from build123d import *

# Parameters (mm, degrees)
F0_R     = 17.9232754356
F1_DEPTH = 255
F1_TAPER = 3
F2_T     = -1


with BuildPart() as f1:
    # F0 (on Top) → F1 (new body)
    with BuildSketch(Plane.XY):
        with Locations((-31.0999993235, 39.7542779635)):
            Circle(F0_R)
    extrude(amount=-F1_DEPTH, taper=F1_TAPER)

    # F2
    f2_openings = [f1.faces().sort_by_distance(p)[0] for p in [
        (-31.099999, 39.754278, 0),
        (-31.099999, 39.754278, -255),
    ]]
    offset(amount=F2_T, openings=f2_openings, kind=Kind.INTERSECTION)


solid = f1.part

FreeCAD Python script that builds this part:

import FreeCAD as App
import Part
import Sketcher
from FreeCAD import Vector


def faces_at(feature, points):
    """Names of the faces that lie closest to the given points."""
    faces = feature.Shape.Faces
    near = lambda p: min(range(len(faces)), key=lambda i: faces[i].distToShape(Part.Vertex(*p))[0])
    return sorted({f"Face{near(p) + 1}" for p in points})

doc = App.newDocument("Part")
body = doc.addObject("PartDesign::Body", "Body")

# Sketch on XY plane
sketch1 = body.newObject("Sketcher::SketchObject", "Sketch")
sketch1.AttachmentSupport = (doc.getObject("XY_Plane"), [""])
sketch1.MapMode = "FlatFace"
sketch1.addGeometry(Part.Circle(Vector(-31, 40, 0), Vector(0, 0, 1), 18), False)
sketch1.addConstraint([
    Sketcher.Constraint("DistanceX", 0, 3, -1, 1, 31.099999),
    Sketcher.Constraint("Diameter", 0, 35.846551),
    Sketcher.Constraint("DistanceY", -1, 1, 0, 3, 39.754278),
])
pad1 = body.newObject("PartDesign::Pad", "Pad")
pad1.Profile = sketch1
pad1.Length = 255
pad1.Reversed = True
pad1.TaperAngle = -3
doc.recompute()

thickness = body.newObject("PartDesign::Thickness", "Thickness")
thickness.Base = (pad1, faces_at(pad1, [(-31.1, 39.754, 0), (-31.1, 39.754, -255)]))
thickness.Value = 1
thickness.Reversed = True
thickness.Join = "Intersection"

doc.recompute()
